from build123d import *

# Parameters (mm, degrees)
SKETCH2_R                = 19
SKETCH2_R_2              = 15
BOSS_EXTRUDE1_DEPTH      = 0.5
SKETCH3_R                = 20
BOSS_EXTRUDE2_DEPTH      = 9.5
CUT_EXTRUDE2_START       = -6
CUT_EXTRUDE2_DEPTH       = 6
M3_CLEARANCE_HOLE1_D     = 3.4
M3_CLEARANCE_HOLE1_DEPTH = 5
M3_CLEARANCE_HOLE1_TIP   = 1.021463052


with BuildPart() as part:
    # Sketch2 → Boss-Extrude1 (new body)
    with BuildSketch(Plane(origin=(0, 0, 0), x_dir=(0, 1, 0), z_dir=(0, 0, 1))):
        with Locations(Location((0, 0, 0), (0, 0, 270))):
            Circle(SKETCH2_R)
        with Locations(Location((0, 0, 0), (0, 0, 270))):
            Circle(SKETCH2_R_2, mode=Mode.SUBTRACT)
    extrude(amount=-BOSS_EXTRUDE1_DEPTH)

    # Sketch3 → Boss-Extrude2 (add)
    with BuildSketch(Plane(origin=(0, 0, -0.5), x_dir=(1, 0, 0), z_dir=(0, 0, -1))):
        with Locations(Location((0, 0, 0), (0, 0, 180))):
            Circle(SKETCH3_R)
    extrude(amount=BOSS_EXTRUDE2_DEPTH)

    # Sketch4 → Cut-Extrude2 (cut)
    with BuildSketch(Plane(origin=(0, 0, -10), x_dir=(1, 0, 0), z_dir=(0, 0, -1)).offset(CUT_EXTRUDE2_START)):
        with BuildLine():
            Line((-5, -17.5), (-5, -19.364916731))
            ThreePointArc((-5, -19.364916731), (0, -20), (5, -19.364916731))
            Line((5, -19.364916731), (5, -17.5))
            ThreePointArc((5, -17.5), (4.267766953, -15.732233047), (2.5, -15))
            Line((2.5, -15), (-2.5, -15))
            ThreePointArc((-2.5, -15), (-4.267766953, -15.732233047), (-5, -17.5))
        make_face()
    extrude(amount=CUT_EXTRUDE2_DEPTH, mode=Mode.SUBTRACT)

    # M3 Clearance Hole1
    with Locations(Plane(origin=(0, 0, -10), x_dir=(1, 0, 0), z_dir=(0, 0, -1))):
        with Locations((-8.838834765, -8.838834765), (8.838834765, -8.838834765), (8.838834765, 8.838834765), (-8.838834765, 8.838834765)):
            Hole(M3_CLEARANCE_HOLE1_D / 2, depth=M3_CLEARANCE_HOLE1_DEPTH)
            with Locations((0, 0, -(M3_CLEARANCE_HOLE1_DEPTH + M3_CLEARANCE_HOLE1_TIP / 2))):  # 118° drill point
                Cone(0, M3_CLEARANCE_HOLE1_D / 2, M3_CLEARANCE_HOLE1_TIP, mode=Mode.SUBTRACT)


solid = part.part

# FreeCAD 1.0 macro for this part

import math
import FreeCAD as App
import Part
import Sketcher
from FreeCAD import Vector

doc = App.newDocument("Part")
body = doc.addObject("PartDesign::Body", "Body")

# Sketch on XY plane
sketch1 = body.newObject("Sketcher::SketchObject", "Sketch")
sketch1.AttachmentSupport = (doc.getObject("XY_Plane"), [""])
sketch1.MapMode = "FlatFace"
sketch1.addGeometry(Part.Circle(Vector(0, 0, 0), Vector(0, 0, 1), 19), False)
sketch1.addGeometry(Part.Circle(Vector(0, 0, 0), Vector(0, 0, 1), 15), False)
sketch1.addConstraint(Sketcher.Constraint("Coincident", 0, 3, -1, 1))
sketch1.addConstraint(Sketcher.Constraint("Coincident", 1, 3, -1, 1))
sketch1.addConstraint(Sketcher.Constraint("Diameter", 0, 38.0))
sketch1.addConstraint(Sketcher.Constraint("Diameter", 1, 30.0))
pad1 = body.newObject("PartDesign::Pad", "Pad")
pad1.Profile = sketch1
pad1.Length = 0.5
pad1.Reversed = True

# Sketch on XY plane
sketch2 = body.newObject("Sketcher::SketchObject", "Sketch001")
sketch2.AttachmentSupport = (doc.getObject("XY_Plane"), [""])
sketch2.MapMode = "FlatFace"
sketch2.AttachmentOffset = App.Placement(Vector(0, 0, -0.5), App.Rotation())
sketch2.addGeometry(Part.Circle(Vector(0, 0, 0), Vector(0, 0, 1), 20), False)
sketch2.addConstraint(Sketcher.Constraint("Coincident", 0, 3, -1, 1))
sketch2.addConstraint(Sketcher.Constraint("Diameter", 0, 40.0))
pad2 = body.newObject("PartDesign::Pad", "Pad001")
pad2.Profile = sketch2
pad2.Length = 9.5
pad2.Reversed = True

# Sketch on XY plane
sketch3 = body.newObject("Sketcher::SketchObject", "Sketch002")
sketch3.AttachmentSupport = (doc.getObject("XY_Plane"), [""])
sketch3.MapMode = "FlatFace"
sketch3.AttachmentOffset = App.Placement(Vector(0, 0, -4), App.Rotation())
sketch3.addGeometry(Part.LineSegment(Vector(-5, 17.5, 0), Vector(-5, 19.364917, 0)), False)
sketch3.addGeometry(Part.ArcOfCircle(Part.Circle(Vector(0, 0, 0), Vector(0, 0, 1), 20), math.radians(75.522488), math.radians(104.477512)), False)
sketch3.addGeometry(Part.LineSegment(Vector(5, 19.364917, 0), Vector(5, 17.5, 0)), False)
sketch3.addGeometry(Part.ArcOfCircle(Part.Circle(Vector(2.5, 17.5, 0), Vector(0, 0, 1), 2.5), math.radians(-90), math.radians(0)), False)
sketch3.addGeometry(Part.LineSegment(Vector(2.5, 15, 0), Vector(-2.5, 15, 0)), False)
sketch3.addGeometry(Part.ArcOfCircle(Part.Circle(Vector(-2.5, 17.5, 0), Vector(0, 0, 1), 2.5), math.radians(180), math.radians(270)), False)
sketch3.addConstraint(Sketcher.Constraint("Coincident", 0, 2, 1, 2))
sketch3.addConstraint(Sketcher.Constraint("Coincident", 1, 1, 2, 1))
sketch3.addConstraint(Sketcher.Constraint("Tangent", 2, 2, 3, 2))
sketch3.addConstraint(Sketcher.Constraint("Tangent", 3, 1, 4, 1))
sketch3.addConstraint(Sketcher.Constraint("Tangent", 4, 2, 5, 2))
sketch3.addConstraint(Sketcher.Constraint("Tangent", 5, 1, 0, 1))
sketch3.addConstraint(Sketcher.Constraint("Vertical", 0))
sketch3.addConstraint(Sketcher.Constraint("Vertical", 2))
sketch3.addConstraint(Sketcher.Constraint("Horizontal", 4))
sketch3.addConstraint(Sketcher.Constraint("Coincident", 1, 3, -1, 1))
sketch3.addConstraint(Sketcher.Constraint("Equal", 3, 5))
sketch3.addConstraint(Sketcher.Constraint("Horizontal", 0, 2, 1, 1))
sketch3.addConstraint(Sketcher.Constraint("Radius", 1, 20.0))
sketch3.addConstraint(Sketcher.Constraint("Radius", 3, 2.5))
sketch3.addConstraint(Sketcher.Constraint("DistanceX", 4, 2, 4, 1, 5.0))
sketch3.addConstraint(Sketcher.Constraint("DistanceY", -1, 1, 3, 1, 15.0))
pocket1 = body.newObject("PartDesign::Pocket", "Pocket")
pocket1.Profile = sketch3
pocket1.Length = 6

# Sketch on XY plane
sketch4 = body.newObject("Sketcher::SketchObject", "Sketch003")
sketch4.AttachmentSupport = (doc.getObject("XY_Plane"), [""])
sketch4.MapMode = "FlatFace"
sketch4.AttachmentOffset = App.Placement(Vector(0, 0, -10), App.Rotation())
sketch4.addGeometry(Part.Circle(Vector(-8.838835, 8.838835, 0), Vector(0, 0, 1), 1.7), False)
sketch4.addGeometry(Part.Circle(Vector(8.838835, 8.838835, 0), Vector(0, 0, 1), 1.7), False)
sketch4.addGeometry(Part.Circle(Vector(8.838835, -8.838835, 0), Vector(0, 0, 1), 1.7), False)
sketch4.addGeometry(Part.Circle(Vector(-8.838835, -8.838835, 0), Vector(0, 0, 1), 1.7), False)
sketch4.addConstraint(Sketcher.Constraint("Equal", 0, 1))
sketch4.addConstraint(Sketcher.Constraint("Equal", 1, 2))
sketch4.addConstraint(Sketcher.Constraint("Equal", 2, 3))
sketch4.addConstraint(Sketcher.Constraint("Symmetric", 0, 3, 2, 3, -1, 1))
sketch4.addConstraint(Sketcher.Constraint("Symmetric", 1, 3, 3, 3, -1, 1))
sketch4.addConstraint(Sketcher.Constraint("Symmetric", 0, 3, 1, 3, -2))
sketch4.addConstraint(Sketcher.Constraint("Diameter", 0, 3.4))
sketch4.addConstraint(Sketcher.Constraint("DistanceX", 0, 3, 1, 3, 17.67767))
sketch4.addConstraint(Sketcher.Constraint("DistanceY", 2, 3, 1, 3, 17.67767))
doc.recompute()
hole = body.newObject("PartDesign::Hole", "Hole")
hole.Profile = sketch4
hole.ThreadType = "None"
hole.Diameter = 3.4
hole.DepthType = "Dimension"
hole.Depth = 5
hole.DrillPoint = "Angled"
hole.DrillPointAngle = 118
hole.Reversed = True

doc.recompute()
